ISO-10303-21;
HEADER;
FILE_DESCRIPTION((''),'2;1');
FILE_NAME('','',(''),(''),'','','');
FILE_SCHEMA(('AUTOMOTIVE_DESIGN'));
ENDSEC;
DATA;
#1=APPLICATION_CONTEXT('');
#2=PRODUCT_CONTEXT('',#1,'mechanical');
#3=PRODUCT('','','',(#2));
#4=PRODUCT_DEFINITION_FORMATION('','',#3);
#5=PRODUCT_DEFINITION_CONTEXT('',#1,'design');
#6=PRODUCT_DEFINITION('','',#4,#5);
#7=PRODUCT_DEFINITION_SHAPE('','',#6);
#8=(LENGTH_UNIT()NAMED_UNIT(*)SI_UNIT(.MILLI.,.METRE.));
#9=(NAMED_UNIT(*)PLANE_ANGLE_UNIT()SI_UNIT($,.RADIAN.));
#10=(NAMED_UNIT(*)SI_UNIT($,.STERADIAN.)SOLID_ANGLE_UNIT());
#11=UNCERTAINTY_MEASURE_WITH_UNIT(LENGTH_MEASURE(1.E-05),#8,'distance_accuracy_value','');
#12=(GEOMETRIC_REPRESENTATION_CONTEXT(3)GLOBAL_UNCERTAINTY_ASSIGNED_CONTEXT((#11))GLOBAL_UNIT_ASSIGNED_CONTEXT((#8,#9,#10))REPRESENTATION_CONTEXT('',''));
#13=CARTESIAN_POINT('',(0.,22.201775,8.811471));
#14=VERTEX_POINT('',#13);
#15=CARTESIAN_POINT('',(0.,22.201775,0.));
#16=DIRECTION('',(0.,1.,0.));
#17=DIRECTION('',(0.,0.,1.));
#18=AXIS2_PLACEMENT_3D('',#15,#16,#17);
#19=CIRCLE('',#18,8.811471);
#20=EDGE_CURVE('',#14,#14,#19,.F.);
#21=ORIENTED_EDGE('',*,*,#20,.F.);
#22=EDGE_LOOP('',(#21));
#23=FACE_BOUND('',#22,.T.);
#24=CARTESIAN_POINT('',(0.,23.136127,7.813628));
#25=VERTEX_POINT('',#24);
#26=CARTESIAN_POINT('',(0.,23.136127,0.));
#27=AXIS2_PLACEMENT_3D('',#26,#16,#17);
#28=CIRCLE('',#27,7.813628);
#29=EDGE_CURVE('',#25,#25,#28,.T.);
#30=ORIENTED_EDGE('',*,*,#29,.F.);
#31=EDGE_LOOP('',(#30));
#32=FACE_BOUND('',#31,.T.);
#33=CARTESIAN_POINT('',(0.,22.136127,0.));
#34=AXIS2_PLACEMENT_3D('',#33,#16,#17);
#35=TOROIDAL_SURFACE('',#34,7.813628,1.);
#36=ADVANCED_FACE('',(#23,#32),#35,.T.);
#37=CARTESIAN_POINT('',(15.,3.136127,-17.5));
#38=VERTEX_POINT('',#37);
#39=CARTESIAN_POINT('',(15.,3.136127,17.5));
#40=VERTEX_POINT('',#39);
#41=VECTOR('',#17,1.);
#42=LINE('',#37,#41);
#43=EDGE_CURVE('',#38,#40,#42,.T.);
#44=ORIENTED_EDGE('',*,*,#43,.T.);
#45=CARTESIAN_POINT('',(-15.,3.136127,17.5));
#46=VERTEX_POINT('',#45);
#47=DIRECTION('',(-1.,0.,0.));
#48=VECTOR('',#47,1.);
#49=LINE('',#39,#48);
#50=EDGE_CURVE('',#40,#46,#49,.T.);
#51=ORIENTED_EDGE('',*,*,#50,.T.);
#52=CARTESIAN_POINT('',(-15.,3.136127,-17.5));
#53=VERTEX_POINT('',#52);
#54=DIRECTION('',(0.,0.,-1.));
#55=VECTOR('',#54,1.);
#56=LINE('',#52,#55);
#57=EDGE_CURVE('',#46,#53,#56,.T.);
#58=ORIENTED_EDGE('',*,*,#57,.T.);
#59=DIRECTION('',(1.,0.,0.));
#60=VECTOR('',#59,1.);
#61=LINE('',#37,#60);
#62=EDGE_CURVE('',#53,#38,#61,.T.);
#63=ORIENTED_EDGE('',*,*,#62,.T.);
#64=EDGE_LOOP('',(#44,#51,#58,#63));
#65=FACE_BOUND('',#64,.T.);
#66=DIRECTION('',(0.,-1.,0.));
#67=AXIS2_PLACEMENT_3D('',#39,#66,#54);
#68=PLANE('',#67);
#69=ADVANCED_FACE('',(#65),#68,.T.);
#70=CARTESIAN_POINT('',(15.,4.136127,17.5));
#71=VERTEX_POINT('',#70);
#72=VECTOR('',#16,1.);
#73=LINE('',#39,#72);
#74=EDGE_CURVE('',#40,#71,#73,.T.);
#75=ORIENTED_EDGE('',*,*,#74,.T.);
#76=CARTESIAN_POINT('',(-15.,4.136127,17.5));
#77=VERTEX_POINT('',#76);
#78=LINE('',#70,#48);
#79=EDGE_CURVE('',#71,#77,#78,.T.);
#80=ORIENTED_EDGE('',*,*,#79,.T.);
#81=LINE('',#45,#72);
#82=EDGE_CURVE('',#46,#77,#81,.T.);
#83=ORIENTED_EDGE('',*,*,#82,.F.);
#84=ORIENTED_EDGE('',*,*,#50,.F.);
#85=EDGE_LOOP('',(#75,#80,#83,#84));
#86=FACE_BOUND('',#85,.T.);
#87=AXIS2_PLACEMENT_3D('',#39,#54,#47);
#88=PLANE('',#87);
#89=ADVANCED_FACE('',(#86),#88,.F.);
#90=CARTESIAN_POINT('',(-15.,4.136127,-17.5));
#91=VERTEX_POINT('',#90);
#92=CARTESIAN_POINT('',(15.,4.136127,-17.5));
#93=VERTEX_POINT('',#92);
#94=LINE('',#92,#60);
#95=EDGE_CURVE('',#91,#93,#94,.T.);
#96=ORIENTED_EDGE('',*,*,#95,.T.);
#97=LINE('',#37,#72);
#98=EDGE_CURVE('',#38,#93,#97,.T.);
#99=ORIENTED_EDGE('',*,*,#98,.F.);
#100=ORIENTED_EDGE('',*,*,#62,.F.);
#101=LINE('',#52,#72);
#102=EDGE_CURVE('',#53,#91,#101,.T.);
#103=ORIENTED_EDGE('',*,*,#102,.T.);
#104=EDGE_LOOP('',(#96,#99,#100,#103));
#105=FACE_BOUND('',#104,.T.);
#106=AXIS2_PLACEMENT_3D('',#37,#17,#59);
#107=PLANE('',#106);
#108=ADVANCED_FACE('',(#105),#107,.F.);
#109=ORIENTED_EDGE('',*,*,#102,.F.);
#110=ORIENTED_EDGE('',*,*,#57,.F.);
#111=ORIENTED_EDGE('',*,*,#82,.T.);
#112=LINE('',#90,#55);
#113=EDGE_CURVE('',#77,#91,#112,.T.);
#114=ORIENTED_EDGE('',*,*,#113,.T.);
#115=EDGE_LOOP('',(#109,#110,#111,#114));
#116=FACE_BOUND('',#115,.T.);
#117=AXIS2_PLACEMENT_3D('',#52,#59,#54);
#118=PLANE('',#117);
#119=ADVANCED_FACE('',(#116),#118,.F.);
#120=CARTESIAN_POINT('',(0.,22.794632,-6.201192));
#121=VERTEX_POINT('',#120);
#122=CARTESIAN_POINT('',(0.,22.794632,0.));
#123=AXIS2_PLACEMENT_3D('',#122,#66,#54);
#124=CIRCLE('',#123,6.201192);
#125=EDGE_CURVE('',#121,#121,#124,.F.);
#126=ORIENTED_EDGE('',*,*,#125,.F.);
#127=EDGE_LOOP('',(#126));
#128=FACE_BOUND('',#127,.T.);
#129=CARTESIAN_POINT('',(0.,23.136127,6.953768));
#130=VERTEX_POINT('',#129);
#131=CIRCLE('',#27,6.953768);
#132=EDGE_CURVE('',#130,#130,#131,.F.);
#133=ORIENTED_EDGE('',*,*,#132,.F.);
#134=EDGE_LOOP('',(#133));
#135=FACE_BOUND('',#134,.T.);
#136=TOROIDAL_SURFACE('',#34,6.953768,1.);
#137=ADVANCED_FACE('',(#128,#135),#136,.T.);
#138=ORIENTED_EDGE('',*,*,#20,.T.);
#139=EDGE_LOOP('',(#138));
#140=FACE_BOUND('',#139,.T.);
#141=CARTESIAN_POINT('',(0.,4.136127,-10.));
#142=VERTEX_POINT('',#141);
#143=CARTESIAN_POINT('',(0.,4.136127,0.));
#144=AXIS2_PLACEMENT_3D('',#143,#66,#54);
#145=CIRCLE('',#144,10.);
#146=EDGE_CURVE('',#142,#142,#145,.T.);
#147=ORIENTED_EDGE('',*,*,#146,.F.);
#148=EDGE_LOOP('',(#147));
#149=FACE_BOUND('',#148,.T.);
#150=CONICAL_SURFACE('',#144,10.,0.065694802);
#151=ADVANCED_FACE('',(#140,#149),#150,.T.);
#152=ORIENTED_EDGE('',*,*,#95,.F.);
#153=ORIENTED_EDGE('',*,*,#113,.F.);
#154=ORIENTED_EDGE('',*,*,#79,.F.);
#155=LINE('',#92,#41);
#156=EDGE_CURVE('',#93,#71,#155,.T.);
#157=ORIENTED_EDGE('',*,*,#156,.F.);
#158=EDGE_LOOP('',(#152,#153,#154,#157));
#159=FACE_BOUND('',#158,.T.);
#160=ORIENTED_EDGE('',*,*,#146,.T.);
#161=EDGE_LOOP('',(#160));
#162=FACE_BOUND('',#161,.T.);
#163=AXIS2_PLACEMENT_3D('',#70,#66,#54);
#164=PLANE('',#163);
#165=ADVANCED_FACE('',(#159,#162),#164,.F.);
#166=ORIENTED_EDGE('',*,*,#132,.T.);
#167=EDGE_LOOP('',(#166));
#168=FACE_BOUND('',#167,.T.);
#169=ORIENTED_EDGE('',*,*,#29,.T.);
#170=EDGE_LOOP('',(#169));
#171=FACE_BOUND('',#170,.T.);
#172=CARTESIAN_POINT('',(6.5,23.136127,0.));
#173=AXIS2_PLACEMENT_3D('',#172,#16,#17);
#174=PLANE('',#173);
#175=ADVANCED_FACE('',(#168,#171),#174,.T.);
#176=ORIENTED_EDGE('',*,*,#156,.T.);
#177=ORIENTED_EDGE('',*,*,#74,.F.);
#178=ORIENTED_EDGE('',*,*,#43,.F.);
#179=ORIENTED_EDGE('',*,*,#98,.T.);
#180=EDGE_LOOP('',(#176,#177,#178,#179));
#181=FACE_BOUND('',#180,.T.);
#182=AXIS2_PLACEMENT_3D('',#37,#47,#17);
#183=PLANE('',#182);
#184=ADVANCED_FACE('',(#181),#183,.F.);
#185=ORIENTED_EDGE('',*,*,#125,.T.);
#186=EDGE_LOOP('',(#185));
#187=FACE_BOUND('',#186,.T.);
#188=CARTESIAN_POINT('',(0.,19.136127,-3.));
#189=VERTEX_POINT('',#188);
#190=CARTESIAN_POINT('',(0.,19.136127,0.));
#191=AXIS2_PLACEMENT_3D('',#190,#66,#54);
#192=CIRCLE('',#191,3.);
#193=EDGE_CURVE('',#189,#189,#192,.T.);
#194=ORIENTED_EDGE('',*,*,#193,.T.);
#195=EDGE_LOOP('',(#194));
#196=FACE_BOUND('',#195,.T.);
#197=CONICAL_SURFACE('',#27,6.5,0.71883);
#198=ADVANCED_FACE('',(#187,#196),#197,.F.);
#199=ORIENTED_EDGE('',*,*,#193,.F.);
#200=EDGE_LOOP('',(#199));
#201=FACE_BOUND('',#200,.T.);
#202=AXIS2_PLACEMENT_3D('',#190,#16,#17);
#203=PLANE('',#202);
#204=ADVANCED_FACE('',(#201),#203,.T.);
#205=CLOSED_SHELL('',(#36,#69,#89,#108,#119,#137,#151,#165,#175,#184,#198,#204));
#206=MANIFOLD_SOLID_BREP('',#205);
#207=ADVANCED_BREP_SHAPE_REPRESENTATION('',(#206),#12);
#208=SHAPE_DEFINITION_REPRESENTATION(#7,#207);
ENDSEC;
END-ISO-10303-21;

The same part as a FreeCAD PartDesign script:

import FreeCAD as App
import Part
import Sketcher


def edges_at(feature, points):
    """Names of the edges that pass closest to the given points."""
    edges = feature.Shape.Edges
    near = lambda p: min(range(len(edges)), key=lambda i: edges[i].distToShape(Part.Vertex(*p))[0])
    return sorted({f"Edge{near(p) + 1}" for p in points})

doc = App.newDocument("Part")
params = doc.addObject("Spreadsheet::Sheet", "Params")
for row, (alias, value) in enumerate([
    ("sketch1_width", "3 mm"),
    ("sketch1_width2", "10 mm"),
    ("sketch1_height", "15 mm"),
    ("sketch1_width3", "2.25 mm"),
    ("revolution_angle", "360 deg"),
    ("fillet_radius", "1 mm"),
    ("sketch2_width", "30 mm"),
    ("sketch2_height", "35 mm"),
    ("pad1_length", "1 mm"),
], start=1):
    params.set(f"A{row}", alias)
    params.set(f"B{row}", "=" + value)
    params.setAlias(f"B{row}", alias)

body = doc.addObject("PartDesign::Body", "Body")

sketch1 = body.newObject("Sketcher::SketchObject", "Sketch")
sketch1.AttachmentSupport = (doc.getObject("XY_Plane"), [""])
sketch1.MapMode = "FlatFace"
sketch1.addGeometry(Part.LineSegment(App.Vector(3, 19.136127, 0), App.Vector(0, 19.136127, 0)), False)
sketch1.addGeometry(Part.LineSegment(App.Vector(0, 19.136127, 0), App.Vector(0, 4.136127, 0)), False)
sketch1.addGeometry(Part.LineSegment(App.Vector(0, 4.136127, 0), App.Vector(10, 4.136127, 0)), False)
sketch1.addGeometry(Part.LineSegment(App.Vector(10, 4.136127, 0), App.Vector(8.75, 23.136127, 0)), False)
sketch1.addGeometry(Part.LineSegment(App.Vector(8.75, 23.136127, 0), App.Vector(6.5, 23.136127, 0)), False)
sketch1.addGeometry(Part.LineSegment(App.Vector(6.5, 23.136127, 0), App.Vector(3, 19.136127, 0)), False)
sketch1.addConstraint(Sketcher.Constraint("Coincident", 0, 2, 1, 1))
sketch1.addConstraint(Sketcher.Constraint("Coincident", 1, 2, 2, 1))
sketch1.addConstraint(Sketcher.Constraint("Coincident", 2, 2, 3, 1))
sketch1.addConstraint(Sketcher.Constraint("Coincident", 3, 2, 4, 1))
sketch1.addConstraint(Sketcher.Constraint("Coincident", 4, 2, 5, 1))
sketch1.addConstraint(Sketcher.Constraint("Coincident", 5, 2, 0, 1))
sketch1.addConstraint(Sketcher.Constraint("Horizontal", 0))
sketch1.addConstraint(Sketcher.Constraint("Vertical", 1))
sketch1.addConstraint(Sketcher.Constraint("Horizontal", 2))
sketch1.addConstraint(Sketcher.Constraint("Horizontal", 4))
sketch1.addConstraint(Sketcher.Constraint("PointOnObject", 0, 2, -2))
sketch1.addConstraint(Sketcher.Constraint("DistanceX", 0, 2, 0, 1, 3.0))
sketch1.addConstraint(Sketcher.Constraint("DistanceX", 2, 1, 2, 2, 10.0))
sketch1.addConstraint(Sketcher.Constraint("DistanceY", 1, 2, 1, 1, 15.0))
sketch1.addConstraint(Sketcher.Constraint("DistanceY", 0, 2, 3, 2, 4.0))
sketch1.addConstraint(Sketcher.Constraint("DistanceX", 4, 2, 4, 1, 2.25))
sketch1.addConstraint(Sketcher.Constraint("DistanceX", -1, 1, 4, 2, 6.5))
sketch1.addConstraint(Sketcher.Constraint("DistanceY", -1, 1, 0, 2, 19.136127))
sketch1.setExpression("Constraints[11]", "Params.sketch1_width")
sketch1.setExpression("Constraints[12]", "Params.sketch1_width2")
sketch1.setExpression("Constraints[13]", "Params.sketch1_height")
sketch1.setExpression("Constraints[15]", "Params.sketch1_width3")
revolution = body.newObject("PartDesign::Revolution", "Revolution")
revolution.Profile = sketch1
revolution.ReferenceAxis = (sketch1, ["V_Axis"])
revolution.setExpression("Angle", "Params.revolution_angle")
doc.recompute()

fillet = body.newObject("PartDesign::Fillet", "Fillet")
fillet.Base = (revolution, edges_at(revolution, [(0, 23.136, 8.75), (0, 23.136, 6.5)]))
fillet.setExpression("Radius", "Params.fillet_radius")

sketch2 = body.newObject("Sketcher::SketchObject", "Sketch001")
sketch2.AttachmentSupport = (doc.getObject("XZ_Plane"), [""])
sketch2.MapMode = "FlatFace"
sketch2.AttachmentOffset = App.Placement(App.Vector(0, 0, -4.136127), App.Rotation())
sketch2.addGeometry(Part.LineSegment(App.Vector(-15, 17.5, 0), App.Vector(-15, -17.5, 0)), False)
sketch2.addGeometry(Part.LineSegment(App.Vector(-15, -17.5, 0), App.Vector(15, -17.5, 0)), False)
sketch2.addGeometry(Part.LineSegment(App.Vector(15, -17.5, 0), App.Vector(15, 17.5, 0)), False)
sketch2.addGeometry(Part.LineSegment(App.Vector(15, 17.5, 0), App.Vector(-15, 17.5, 0)), False)
sketch2.addConstraint(Sketcher.Constraint("Coincident", 0, 2, 1, 1))
sketch2.addConstraint(Sketcher.Constraint("Coincident", 1, 2, 2, 1))
sketch2.addConstraint(Sketcher.Constraint("Coincident", 2, 2, 3, 1))
sketch2.addConstraint(Sketcher.Constraint("Coincident", 3, 2, 0, 1))
sketch2.addConstraint(Sketcher.Constraint("Vertical", 0))
sketch2.addConstraint(Sketcher.Constraint("Horizontal", 1))
sketch2.addConstraint(Sketcher.Constraint("Vertical", 2))
sketch2.addConstraint(Sketcher.Constraint("Horizontal", 3))
sketch2.addConstraint(Sketcher.Constraint("Symmetric", 0, 2, 2, 2, -1, 1))
sketch2.addConstraint(Sketcher.Constraint("DistanceX", 1, 1, 1, 2, 30.0))
sketch2.addConstraint(Sketcher.Constraint("DistanceY", 0, 2, 0, 1, 35.0))
sketch2.setExpression("Constraints[9]", "Params.sketch2_width")
sketch2.setExpression("Constraints[10]", "Params.sketch2_height")
pad1 = body.newObject("PartDesign::Pad", "Pad")
pad1.Profile = sketch2
pad1.setExpression("Length", "Params.pad1_length")

doc.recompute()
